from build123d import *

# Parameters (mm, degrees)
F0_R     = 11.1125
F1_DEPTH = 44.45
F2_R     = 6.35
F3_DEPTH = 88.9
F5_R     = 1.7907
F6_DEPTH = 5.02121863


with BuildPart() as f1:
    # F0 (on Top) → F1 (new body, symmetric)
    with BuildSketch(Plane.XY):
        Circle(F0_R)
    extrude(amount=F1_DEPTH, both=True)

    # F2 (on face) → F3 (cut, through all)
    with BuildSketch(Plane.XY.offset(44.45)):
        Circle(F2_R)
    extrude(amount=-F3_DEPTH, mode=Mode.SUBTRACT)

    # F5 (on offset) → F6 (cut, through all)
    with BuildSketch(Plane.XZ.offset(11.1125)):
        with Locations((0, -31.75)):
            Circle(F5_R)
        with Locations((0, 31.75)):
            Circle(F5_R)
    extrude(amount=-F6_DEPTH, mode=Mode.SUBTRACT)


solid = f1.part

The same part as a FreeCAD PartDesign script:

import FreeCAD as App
import Part
import Sketcher

V = App.Vector
Q = App.Units.Quantity

doc = App.newDocument("Part")
params = doc.addObject("Spreadsheet::Sheet", "Params")
for row, (alias, value) in enumerate([
    ("sketch1_diameter", "0.875 in"),
    ("pad1_length", "3.5 in"),
    ("sketch2_diameter", "0.5 in"),
    ("sketch3_diameter", "0.141 in"),
    ("pocket2_length", "5.021219 mm"),
], start=1):
    params.set(f"A{row}", alias)
    params.set(f"B{row}", "=" + value)
    params.setAlias(f"B{row}", alias)

body = doc.addObject("PartDesign::Body", "Body")

# Sketch on XY plane
sketch1 = body.newObject("Sketcher::SketchObject", "Sketch")
sketch1.AttachmentSupport = (doc.getObject("XY_Plane"), [""])
sketch1.MapMode = "FlatFace"
sketch1.addGeometry(Part.Circle(V(0, 0, 0), V(0, 0, 1), 11), False)
sketch1.addConstraint([
    Sketcher.Constraint("Coincident", 0, 3, -1, 1),
    Sketcher.Constraint("Diameter", 0, Q("0.875 in")),
])
sketch1.setExpression("Constraints[1]", "Params.sketch1_diameter")
pad1 = body.newObject("PartDesign::Pad", "Pad")
pad1.Profile = sketch1
pad1.setExpression("Length", "Params.pad1_length")
pad1.Midplane = True

# Sketch on XY plane
sketch2 = body.newObject("Sketcher::SketchObject", "Sketch001")
sketch2.AttachmentSupport = (doc.getObject("XY_Plane"), [""])
sketch2.MapMode = "FlatFace"
sketch2.AttachmentOffset = App.Placement(V(0, 0, 1.75 * 25.4), App.Rotation())
sketch2.addGeometry(Part.Circle(V(0, 0, 0), V(0, 0, 1), 6), False)
sketch2.addConstraint([
    Sketcher.Constraint("Coincident", 0, 3, -1, 1),
    Sketcher.Constraint("Diameter", 0, Q("0.5 in")),
])
sketch2.setExpression("Constraints[1]", "Params.sketch2_diameter")
pocket1 = body.newObject("PartDesign::Pocket", "Pocket")
pocket1.Profile = sketch2
pocket1.Type = "ThroughAll"

# Sketch on XZ plane
sketch3 = body.newObject("Sketcher::SketchObject", "Sketch002")
sketch3.AttachmentSupport = (doc.getObject("XZ_Plane"), [""])
sketch3.MapMode = "FlatFace"
sketch3.AttachmentOffset = App.Placement(V(0, 0, 0.4375 * 25.4), App.Rotation())
sketch3.addGeometry([
    Part.Circle(V(0, -31.8, 0), V(0, 0, 1), 1.8),
    Part.Circle(V(0, 31.8, 0), V(0, 0, 1), 1.8),
], False)
sketch3.addConstraint([
    Sketcher.Constraint("Equal", 0, 1),
    Sketcher.Constraint("Symmetric", 0, 3, 1, 3, -1, 1),
    Sketcher.Constraint("PointOnObject", 0, 3, -2),
    Sketcher.Constraint("Diameter", 0, Q("0.141 in")),
    Sketcher.Constraint("DistanceY", 0, 3, 1, 3, Q("2.5 in")),
])
sketch3.setExpression("Constraints[3]", "Params.sketch3_diameter")
pocket2 = body.newObject("PartDesign::Pocket", "Pocket001")
pocket2.Profile = sketch3
pocket2.setExpression("Length", "Params.pocket2_length")

doc.recompute()
